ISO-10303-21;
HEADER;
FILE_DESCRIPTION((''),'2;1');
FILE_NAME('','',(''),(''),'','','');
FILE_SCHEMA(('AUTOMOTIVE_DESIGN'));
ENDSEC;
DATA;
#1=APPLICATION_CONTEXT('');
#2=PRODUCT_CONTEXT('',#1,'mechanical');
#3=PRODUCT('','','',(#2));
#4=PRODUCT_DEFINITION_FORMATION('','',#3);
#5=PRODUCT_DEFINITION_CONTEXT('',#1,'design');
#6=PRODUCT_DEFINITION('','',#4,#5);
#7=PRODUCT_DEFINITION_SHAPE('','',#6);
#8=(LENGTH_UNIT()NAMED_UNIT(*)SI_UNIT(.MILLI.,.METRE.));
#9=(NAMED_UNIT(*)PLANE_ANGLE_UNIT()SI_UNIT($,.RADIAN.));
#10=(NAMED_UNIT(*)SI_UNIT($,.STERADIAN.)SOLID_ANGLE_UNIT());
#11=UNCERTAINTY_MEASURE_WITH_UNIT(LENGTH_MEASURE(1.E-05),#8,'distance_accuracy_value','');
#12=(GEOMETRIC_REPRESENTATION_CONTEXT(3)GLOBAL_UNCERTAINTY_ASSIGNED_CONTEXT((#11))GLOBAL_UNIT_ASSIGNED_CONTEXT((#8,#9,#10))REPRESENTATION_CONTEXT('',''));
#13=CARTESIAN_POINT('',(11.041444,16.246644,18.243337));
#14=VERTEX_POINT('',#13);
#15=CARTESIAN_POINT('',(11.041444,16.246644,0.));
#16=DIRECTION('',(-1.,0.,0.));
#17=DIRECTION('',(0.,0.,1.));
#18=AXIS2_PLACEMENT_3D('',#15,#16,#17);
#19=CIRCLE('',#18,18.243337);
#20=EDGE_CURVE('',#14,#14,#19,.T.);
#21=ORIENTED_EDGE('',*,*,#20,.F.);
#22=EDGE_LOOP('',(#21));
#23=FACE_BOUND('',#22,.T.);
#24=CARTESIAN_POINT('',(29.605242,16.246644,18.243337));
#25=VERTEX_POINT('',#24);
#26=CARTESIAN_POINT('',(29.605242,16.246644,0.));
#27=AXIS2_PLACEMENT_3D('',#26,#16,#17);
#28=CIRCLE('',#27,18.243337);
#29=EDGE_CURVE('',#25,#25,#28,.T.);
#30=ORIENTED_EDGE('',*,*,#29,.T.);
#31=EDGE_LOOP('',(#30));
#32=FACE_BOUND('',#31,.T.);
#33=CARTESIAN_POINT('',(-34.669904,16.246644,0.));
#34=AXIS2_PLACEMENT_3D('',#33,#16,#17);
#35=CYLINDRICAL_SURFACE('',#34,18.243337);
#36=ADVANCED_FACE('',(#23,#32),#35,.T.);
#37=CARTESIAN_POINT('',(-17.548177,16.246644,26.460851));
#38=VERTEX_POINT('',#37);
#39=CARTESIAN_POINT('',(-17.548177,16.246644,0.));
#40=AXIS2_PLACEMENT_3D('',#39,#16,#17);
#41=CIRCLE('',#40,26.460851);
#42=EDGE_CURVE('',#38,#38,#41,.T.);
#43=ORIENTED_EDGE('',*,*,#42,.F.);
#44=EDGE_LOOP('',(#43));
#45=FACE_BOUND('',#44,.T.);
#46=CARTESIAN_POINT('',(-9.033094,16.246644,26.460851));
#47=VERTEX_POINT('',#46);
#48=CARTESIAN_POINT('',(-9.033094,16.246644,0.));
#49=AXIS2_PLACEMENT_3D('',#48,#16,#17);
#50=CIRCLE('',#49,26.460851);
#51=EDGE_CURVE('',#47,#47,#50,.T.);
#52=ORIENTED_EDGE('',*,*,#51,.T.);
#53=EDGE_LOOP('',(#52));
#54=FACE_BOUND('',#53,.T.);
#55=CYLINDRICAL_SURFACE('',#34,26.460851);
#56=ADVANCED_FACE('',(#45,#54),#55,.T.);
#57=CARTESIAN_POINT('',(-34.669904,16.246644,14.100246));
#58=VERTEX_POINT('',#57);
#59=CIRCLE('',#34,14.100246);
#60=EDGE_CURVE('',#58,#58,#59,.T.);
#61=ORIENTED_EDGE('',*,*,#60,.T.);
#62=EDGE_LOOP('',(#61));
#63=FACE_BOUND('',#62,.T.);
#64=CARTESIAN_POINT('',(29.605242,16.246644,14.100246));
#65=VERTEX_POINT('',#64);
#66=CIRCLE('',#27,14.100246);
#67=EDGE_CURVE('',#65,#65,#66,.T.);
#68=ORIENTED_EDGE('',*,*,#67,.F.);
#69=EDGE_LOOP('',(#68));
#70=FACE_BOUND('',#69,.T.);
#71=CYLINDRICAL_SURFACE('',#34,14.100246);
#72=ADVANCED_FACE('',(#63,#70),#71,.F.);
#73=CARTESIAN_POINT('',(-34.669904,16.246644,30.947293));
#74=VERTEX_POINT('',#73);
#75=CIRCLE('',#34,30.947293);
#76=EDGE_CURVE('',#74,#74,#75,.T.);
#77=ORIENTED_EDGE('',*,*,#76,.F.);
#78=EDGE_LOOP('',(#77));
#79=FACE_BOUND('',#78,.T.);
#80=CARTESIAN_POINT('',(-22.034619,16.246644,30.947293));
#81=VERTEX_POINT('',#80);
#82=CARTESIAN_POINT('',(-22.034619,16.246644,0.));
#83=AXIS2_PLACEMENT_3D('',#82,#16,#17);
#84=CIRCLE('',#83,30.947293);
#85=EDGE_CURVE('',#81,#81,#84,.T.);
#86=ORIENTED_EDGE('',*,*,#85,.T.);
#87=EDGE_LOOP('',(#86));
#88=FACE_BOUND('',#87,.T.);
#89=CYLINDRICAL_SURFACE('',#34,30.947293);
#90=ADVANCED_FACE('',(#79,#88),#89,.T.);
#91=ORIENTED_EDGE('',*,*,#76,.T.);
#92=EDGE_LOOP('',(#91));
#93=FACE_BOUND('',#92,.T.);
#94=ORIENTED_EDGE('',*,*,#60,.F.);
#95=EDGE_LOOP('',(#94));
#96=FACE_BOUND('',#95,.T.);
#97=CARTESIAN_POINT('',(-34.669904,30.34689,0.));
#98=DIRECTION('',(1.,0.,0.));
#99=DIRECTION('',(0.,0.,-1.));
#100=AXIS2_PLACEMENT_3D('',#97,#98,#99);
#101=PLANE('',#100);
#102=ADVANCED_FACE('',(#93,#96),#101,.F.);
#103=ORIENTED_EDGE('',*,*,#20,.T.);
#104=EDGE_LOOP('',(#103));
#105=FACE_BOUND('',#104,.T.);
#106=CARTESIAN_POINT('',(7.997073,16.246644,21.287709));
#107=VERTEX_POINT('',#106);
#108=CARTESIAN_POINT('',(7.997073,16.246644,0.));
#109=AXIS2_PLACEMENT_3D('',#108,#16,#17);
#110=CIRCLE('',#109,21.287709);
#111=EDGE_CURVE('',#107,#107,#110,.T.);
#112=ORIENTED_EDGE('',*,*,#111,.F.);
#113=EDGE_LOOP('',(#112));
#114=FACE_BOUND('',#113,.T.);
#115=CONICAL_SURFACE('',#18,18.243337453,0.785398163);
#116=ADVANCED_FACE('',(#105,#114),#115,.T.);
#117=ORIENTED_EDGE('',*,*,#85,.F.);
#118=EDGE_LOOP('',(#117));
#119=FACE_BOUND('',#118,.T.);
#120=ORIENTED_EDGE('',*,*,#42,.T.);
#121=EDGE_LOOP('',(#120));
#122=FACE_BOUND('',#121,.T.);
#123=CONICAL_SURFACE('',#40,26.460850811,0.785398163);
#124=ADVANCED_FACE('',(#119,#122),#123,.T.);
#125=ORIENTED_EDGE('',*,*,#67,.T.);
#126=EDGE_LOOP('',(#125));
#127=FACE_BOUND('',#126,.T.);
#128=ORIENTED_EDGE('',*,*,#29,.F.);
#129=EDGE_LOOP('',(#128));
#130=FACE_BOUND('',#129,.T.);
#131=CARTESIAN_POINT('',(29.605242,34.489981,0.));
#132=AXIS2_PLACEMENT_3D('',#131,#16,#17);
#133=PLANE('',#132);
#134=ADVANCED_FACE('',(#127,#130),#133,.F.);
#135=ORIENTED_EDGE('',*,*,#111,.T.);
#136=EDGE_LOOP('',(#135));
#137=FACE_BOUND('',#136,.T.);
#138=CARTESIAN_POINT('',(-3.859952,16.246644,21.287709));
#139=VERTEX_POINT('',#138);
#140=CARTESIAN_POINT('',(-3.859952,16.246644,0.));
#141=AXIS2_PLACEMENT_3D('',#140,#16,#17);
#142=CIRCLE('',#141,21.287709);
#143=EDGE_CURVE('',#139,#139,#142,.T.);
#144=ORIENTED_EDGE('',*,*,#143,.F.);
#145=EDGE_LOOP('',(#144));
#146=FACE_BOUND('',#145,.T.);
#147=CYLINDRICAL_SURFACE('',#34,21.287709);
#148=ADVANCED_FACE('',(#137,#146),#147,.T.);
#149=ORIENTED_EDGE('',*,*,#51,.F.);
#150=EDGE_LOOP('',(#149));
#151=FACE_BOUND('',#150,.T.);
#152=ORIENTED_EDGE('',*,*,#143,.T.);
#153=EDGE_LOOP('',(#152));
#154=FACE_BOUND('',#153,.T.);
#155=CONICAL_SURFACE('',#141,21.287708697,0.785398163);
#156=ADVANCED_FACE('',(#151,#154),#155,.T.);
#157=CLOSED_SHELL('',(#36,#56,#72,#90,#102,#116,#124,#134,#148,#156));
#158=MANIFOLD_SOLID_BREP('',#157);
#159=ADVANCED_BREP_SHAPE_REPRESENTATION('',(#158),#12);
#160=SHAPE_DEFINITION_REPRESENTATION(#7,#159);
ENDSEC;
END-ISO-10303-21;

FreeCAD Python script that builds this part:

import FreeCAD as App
import Part
import Sketcher

V = App.Vector
Q = App.Units.Quantity

doc = App.newDocument("Part")
body = doc.addObject("PartDesign::Body", "Body")

sketch1 = body.newObject("Sketcher::SketchObject", "Sketch")
sketch1.AttachmentSupport = (doc.getObject("XY_Plane"), [""])
sketch1.MapMode = "FlatFace"
sketch1.addGeometry([
    Part.LineSegment(V(-34.7, 47.2, 0), V(-34.7, 30.3, 0)),
    Part.LineSegment(V(-34.7, 30.3, 0), V(29.6, 30.3, 0)),
    Part.LineSegment(V(29.6, 30.3, 0), V(29.6, 34.5, 0)),
    Part.LineSegment(V(29.6, 34.5, 0), V(11, 34.5, 0)),
    Part.LineSegment(V(11, 34.5, 0), V(8, 37.5, 0)),
    Part.LineSegment(V(8, 37.5, 0), V(-3.9, 37.5, 0)),
    Part.LineSegment(V(-3.9, 37.5, 0), V(-9, 42.7, 0)),
    Part.LineSegment(V(-9, 42.7, 0), V(-17.5, 42.7, 0)),
    Part.LineSegment(V(-17.5, 42.7, 0), V(-22, 47.2, 0)),
    Part.LineSegment(V(-22, 47.2, 0), V(-34.7, 47.2, 0)),
], False)
sketch1.addGeometry(Part.LineSegment(V(-34.7, 16.2, 0), V(29.6, 16.2, 0)), True)
sketch1.addConstraint([
    Sketcher.Constraint("Coincident", 0, 2, 1, 1),
    Sketcher.Constraint("Coincident", 1, 2, 2, 1),
    Sketcher.Constraint("Coincident", 2, 2, 3, 1),
    Sketcher.Constraint("Coincident", 3, 2, 4, 1),
    Sketcher.Constraint("Coincident", 4, 2, 5, 1),
    Sketcher.Constraint("Coincident", 5, 2, 6, 1),
    Sketcher.Constraint("Coincident", 6, 2, 7, 1),
    Sketcher.Constraint("Coincident", 7, 2, 8, 1),
    Sketcher.Constraint("Coincident", 8, 2, 9, 1),
    Sketcher.Constraint("Coincident", 9, 2, 0, 1),
    Sketcher.Constraint("Vertical", 0),
    Sketcher.Constraint("Horizontal", 1),
    Sketcher.Constraint("Vertical", 2),
    Sketcher.Constraint("Horizontal", 3),
    Sketcher.Constraint("Horizontal", 5),
    Sketcher.Constraint("Horizontal", 7),
    Sketcher.Constraint("Horizontal", 9),
    Sketcher.Constraint("Horizontal", 10),
    Sketcher.Constraint("Parallel", 4, 6),
    Sketcher.Constraint("Parallel", 6, 8),
    Sketcher.Constraint("Vertical", 9, 2, 10, 1),
    Sketcher.Constraint("Vertical", 2, 2, 10, 2),
    Sketcher.Constraint("Angle", 4, Q("135 deg")),
    Sketcher.Constraint("DistanceY", 2, 1, 2, 2, Q("4.143092 mm")),
    Sketcher.Constraint("Distance", 4, Q("4.305391 mm")),
    Sketcher.Constraint("DistanceX", 1, 1, 1, 2, Q("64.275146 mm")),
    Sketcher.Constraint("DistanceX", 3, 2, 3, 1, Q("18.563798 mm")),
    Sketcher.Constraint("DistanceX", 5, 2, 5, 1, Q("11.857025 mm")),
    Sketcher.Constraint("DistanceX", 7, 2, 7, 1, Q("8.515083 mm")),
    Sketcher.Constraint("DistanceX", 9, 2, 9, 1, Q("12.635285 mm")),
    Sketcher.Constraint("DistanceY", -1, 1, 0, 2, Q("30.34689 mm")),
    Sketcher.Constraint("DistanceX", 5, 2, -1, 1, Q("3.859952 mm")),
    Sketcher.Constraint("DistanceX", 6, 2, 3, 2, Q("20.074538 mm")),
    Sketcher.Constraint("DistanceY", 10, 1, 7, 2, Q("26.460851 mm")),
])
revolution = body.newObject("PartDesign::Revolution", "Revolution")
revolution.Profile = sketch1
revolution.ReferenceAxis = (sketch1, ["Axis0"])
revolution.Angle = 360

doc.recompute()
